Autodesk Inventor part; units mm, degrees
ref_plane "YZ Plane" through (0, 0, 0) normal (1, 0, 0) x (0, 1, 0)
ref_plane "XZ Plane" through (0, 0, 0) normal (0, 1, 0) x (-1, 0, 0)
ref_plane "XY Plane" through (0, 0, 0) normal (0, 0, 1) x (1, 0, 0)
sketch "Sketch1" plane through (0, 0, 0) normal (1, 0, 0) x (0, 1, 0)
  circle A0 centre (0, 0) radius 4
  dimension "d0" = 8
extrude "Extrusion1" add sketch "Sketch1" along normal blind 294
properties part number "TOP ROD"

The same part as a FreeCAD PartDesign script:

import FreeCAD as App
import Part
import Sketcher

doc = App.newDocument("Part")
params = doc.addObject("Spreadsheet::Sheet", "Params")
for row, (alias, value) in enumerate([
    ("sketch1_diameter", "8 mm"),
    ("pad1_length", "294 mm"),
], start=1):
    params.set(f"A{row}", alias)
    params.set(f"B{row}", "=" + value)
    params.setAlias(f"B{row}", alias)

body = doc.addObject("PartDesign::Body", "Body")

sketch1 = doc.addObject("Sketcher::SketchObject", "Sketch")
body.addObject(sketch1)
sketch1.AttachmentSupport = (doc.YZ_Plane, [""])
sketch1.MapMode = "FlatFace"
sketch1.addGeometry(Part.Circle(App.Vector(0, 0, 0), App.Vector(0, 0, 1), 4), False)
sketch1.addConstraint([
    Sketcher.Constraint("Coincident", 0, 3, -1, 1),
    Sketcher.Constraint("Diameter", 0, 8.0),
])
sketch1.setExpression("Constraints[1]", "Params.sketch1_diameter")
pad1 = doc.addObject("PartDesign::Pad", "Pad")
body.addObject(pad1)
pad1.Profile = sketch1
pad1.setExpression("Length", "Params.pad1_length")

doc.recompute()
